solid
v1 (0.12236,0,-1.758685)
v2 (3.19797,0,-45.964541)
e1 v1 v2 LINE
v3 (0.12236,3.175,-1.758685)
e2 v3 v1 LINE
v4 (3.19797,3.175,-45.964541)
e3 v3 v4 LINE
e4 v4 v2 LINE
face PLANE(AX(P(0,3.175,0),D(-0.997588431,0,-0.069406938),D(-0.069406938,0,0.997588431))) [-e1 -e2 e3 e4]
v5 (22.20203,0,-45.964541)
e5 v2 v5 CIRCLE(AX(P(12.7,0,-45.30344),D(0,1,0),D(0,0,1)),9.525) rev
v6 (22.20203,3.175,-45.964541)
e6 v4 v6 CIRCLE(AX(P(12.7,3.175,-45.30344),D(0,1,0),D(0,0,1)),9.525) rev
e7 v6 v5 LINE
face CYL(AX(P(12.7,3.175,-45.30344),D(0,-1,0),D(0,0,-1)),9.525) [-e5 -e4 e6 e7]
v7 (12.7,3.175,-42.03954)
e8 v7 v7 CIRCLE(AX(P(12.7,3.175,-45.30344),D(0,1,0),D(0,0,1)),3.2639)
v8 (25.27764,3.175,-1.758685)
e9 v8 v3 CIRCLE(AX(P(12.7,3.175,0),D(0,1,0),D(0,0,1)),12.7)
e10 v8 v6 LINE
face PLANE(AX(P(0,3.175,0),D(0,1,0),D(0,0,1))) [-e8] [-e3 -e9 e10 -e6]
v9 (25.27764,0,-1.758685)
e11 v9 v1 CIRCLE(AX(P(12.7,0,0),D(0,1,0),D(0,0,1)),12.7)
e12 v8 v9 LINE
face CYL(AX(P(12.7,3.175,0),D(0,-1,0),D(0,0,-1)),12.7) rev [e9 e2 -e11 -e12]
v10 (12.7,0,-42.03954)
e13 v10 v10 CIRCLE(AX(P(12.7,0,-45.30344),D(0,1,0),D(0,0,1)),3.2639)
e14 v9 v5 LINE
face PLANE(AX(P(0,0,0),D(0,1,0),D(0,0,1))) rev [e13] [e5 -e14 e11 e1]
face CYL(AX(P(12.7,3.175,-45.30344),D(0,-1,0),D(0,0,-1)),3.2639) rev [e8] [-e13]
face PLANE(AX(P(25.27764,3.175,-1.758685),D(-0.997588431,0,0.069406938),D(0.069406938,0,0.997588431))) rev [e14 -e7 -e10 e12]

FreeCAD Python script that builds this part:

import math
import FreeCAD as App
import Part
import Sketcher
from FreeCAD import Vector
Q = App.Units.Quantity

doc = App.newDocument("Part")
body = doc.addObject("PartDesign::Body", "Body")

# Sketch on XZ plane
sketch1 = body.newObject("Sketcher::SketchObject", "Sketch")
sketch1.AttachmentSupport = (doc.getObject("XZ_Plane"), [""])
sketch1.MapMode = "FlatFace"
sketch1.addGeometry([
    Part.LineSegment(Vector(3.2, -46, 0), Vector(0.1, -1.8, 0)),  # 0
    Part.ArcOfCircle(Part.Circle(Vector(12.7, 0, 0), Vector(0, 0, 1), 12.7), math.radians(-172), math.radians(-8)),  # 1
    Part.LineSegment(Vector(25.3, -1.8, 0), Vector(22.2, -46, 0)),  # 2
    Part.ArcOfCircle(Part.Circle(Vector(12.7, -45.3, 0), Vector(0, 0, 1), 9.5), math.radians(-176), math.radians(-4)),  # 3
    Part.Circle(Vector(12.7, -45.3, 0), Vector(0, 0, 1), 3.3),  # 4
], False)
sketch1.addConstraint([
    Sketcher.Constraint("Coincident", 0, 2, 1, 1),
    Sketcher.Constraint("Coincident", 1, 2, 2, 1),
    Sketcher.Constraint("Tangent", 2, 2, 3, 2),
    Sketcher.Constraint("Tangent", 3, 1, 0, 1),
    Sketcher.Constraint("Coincident", 4, 3, 3, 3),
    Sketcher.Constraint("PointOnObject", 1, 3, -1),
    Sketcher.Constraint("Horizontal", 0, 2, 1, 2),
    Sketcher.Constraint("Horizontal", 2, 2, 3, 1),
    Sketcher.Constraint("Radius", 1, Q("0.5 in")),
    Sketcher.Constraint("Diameter", 4, Q("0.257 in")),
    Sketcher.Constraint("Radius", 3, Q("0.375 in")),
    Sketcher.Constraint("DistanceX", -1, 1, 1, 3, Q("0.5 in")),
    Sketcher.Constraint("DistanceY", 3, 3, -1, 1, Q("1.7836 in")),
    Sketcher.Constraint("DistanceY", 2, 2, 3, 3, 0.661101),
])
pad1 = body.newObject("PartDesign::Pad", "Pad")
pad1.Profile = sketch1
pad1.Length = Q("0.125 in")
pad1.Reversed = True

doc.recompute()
